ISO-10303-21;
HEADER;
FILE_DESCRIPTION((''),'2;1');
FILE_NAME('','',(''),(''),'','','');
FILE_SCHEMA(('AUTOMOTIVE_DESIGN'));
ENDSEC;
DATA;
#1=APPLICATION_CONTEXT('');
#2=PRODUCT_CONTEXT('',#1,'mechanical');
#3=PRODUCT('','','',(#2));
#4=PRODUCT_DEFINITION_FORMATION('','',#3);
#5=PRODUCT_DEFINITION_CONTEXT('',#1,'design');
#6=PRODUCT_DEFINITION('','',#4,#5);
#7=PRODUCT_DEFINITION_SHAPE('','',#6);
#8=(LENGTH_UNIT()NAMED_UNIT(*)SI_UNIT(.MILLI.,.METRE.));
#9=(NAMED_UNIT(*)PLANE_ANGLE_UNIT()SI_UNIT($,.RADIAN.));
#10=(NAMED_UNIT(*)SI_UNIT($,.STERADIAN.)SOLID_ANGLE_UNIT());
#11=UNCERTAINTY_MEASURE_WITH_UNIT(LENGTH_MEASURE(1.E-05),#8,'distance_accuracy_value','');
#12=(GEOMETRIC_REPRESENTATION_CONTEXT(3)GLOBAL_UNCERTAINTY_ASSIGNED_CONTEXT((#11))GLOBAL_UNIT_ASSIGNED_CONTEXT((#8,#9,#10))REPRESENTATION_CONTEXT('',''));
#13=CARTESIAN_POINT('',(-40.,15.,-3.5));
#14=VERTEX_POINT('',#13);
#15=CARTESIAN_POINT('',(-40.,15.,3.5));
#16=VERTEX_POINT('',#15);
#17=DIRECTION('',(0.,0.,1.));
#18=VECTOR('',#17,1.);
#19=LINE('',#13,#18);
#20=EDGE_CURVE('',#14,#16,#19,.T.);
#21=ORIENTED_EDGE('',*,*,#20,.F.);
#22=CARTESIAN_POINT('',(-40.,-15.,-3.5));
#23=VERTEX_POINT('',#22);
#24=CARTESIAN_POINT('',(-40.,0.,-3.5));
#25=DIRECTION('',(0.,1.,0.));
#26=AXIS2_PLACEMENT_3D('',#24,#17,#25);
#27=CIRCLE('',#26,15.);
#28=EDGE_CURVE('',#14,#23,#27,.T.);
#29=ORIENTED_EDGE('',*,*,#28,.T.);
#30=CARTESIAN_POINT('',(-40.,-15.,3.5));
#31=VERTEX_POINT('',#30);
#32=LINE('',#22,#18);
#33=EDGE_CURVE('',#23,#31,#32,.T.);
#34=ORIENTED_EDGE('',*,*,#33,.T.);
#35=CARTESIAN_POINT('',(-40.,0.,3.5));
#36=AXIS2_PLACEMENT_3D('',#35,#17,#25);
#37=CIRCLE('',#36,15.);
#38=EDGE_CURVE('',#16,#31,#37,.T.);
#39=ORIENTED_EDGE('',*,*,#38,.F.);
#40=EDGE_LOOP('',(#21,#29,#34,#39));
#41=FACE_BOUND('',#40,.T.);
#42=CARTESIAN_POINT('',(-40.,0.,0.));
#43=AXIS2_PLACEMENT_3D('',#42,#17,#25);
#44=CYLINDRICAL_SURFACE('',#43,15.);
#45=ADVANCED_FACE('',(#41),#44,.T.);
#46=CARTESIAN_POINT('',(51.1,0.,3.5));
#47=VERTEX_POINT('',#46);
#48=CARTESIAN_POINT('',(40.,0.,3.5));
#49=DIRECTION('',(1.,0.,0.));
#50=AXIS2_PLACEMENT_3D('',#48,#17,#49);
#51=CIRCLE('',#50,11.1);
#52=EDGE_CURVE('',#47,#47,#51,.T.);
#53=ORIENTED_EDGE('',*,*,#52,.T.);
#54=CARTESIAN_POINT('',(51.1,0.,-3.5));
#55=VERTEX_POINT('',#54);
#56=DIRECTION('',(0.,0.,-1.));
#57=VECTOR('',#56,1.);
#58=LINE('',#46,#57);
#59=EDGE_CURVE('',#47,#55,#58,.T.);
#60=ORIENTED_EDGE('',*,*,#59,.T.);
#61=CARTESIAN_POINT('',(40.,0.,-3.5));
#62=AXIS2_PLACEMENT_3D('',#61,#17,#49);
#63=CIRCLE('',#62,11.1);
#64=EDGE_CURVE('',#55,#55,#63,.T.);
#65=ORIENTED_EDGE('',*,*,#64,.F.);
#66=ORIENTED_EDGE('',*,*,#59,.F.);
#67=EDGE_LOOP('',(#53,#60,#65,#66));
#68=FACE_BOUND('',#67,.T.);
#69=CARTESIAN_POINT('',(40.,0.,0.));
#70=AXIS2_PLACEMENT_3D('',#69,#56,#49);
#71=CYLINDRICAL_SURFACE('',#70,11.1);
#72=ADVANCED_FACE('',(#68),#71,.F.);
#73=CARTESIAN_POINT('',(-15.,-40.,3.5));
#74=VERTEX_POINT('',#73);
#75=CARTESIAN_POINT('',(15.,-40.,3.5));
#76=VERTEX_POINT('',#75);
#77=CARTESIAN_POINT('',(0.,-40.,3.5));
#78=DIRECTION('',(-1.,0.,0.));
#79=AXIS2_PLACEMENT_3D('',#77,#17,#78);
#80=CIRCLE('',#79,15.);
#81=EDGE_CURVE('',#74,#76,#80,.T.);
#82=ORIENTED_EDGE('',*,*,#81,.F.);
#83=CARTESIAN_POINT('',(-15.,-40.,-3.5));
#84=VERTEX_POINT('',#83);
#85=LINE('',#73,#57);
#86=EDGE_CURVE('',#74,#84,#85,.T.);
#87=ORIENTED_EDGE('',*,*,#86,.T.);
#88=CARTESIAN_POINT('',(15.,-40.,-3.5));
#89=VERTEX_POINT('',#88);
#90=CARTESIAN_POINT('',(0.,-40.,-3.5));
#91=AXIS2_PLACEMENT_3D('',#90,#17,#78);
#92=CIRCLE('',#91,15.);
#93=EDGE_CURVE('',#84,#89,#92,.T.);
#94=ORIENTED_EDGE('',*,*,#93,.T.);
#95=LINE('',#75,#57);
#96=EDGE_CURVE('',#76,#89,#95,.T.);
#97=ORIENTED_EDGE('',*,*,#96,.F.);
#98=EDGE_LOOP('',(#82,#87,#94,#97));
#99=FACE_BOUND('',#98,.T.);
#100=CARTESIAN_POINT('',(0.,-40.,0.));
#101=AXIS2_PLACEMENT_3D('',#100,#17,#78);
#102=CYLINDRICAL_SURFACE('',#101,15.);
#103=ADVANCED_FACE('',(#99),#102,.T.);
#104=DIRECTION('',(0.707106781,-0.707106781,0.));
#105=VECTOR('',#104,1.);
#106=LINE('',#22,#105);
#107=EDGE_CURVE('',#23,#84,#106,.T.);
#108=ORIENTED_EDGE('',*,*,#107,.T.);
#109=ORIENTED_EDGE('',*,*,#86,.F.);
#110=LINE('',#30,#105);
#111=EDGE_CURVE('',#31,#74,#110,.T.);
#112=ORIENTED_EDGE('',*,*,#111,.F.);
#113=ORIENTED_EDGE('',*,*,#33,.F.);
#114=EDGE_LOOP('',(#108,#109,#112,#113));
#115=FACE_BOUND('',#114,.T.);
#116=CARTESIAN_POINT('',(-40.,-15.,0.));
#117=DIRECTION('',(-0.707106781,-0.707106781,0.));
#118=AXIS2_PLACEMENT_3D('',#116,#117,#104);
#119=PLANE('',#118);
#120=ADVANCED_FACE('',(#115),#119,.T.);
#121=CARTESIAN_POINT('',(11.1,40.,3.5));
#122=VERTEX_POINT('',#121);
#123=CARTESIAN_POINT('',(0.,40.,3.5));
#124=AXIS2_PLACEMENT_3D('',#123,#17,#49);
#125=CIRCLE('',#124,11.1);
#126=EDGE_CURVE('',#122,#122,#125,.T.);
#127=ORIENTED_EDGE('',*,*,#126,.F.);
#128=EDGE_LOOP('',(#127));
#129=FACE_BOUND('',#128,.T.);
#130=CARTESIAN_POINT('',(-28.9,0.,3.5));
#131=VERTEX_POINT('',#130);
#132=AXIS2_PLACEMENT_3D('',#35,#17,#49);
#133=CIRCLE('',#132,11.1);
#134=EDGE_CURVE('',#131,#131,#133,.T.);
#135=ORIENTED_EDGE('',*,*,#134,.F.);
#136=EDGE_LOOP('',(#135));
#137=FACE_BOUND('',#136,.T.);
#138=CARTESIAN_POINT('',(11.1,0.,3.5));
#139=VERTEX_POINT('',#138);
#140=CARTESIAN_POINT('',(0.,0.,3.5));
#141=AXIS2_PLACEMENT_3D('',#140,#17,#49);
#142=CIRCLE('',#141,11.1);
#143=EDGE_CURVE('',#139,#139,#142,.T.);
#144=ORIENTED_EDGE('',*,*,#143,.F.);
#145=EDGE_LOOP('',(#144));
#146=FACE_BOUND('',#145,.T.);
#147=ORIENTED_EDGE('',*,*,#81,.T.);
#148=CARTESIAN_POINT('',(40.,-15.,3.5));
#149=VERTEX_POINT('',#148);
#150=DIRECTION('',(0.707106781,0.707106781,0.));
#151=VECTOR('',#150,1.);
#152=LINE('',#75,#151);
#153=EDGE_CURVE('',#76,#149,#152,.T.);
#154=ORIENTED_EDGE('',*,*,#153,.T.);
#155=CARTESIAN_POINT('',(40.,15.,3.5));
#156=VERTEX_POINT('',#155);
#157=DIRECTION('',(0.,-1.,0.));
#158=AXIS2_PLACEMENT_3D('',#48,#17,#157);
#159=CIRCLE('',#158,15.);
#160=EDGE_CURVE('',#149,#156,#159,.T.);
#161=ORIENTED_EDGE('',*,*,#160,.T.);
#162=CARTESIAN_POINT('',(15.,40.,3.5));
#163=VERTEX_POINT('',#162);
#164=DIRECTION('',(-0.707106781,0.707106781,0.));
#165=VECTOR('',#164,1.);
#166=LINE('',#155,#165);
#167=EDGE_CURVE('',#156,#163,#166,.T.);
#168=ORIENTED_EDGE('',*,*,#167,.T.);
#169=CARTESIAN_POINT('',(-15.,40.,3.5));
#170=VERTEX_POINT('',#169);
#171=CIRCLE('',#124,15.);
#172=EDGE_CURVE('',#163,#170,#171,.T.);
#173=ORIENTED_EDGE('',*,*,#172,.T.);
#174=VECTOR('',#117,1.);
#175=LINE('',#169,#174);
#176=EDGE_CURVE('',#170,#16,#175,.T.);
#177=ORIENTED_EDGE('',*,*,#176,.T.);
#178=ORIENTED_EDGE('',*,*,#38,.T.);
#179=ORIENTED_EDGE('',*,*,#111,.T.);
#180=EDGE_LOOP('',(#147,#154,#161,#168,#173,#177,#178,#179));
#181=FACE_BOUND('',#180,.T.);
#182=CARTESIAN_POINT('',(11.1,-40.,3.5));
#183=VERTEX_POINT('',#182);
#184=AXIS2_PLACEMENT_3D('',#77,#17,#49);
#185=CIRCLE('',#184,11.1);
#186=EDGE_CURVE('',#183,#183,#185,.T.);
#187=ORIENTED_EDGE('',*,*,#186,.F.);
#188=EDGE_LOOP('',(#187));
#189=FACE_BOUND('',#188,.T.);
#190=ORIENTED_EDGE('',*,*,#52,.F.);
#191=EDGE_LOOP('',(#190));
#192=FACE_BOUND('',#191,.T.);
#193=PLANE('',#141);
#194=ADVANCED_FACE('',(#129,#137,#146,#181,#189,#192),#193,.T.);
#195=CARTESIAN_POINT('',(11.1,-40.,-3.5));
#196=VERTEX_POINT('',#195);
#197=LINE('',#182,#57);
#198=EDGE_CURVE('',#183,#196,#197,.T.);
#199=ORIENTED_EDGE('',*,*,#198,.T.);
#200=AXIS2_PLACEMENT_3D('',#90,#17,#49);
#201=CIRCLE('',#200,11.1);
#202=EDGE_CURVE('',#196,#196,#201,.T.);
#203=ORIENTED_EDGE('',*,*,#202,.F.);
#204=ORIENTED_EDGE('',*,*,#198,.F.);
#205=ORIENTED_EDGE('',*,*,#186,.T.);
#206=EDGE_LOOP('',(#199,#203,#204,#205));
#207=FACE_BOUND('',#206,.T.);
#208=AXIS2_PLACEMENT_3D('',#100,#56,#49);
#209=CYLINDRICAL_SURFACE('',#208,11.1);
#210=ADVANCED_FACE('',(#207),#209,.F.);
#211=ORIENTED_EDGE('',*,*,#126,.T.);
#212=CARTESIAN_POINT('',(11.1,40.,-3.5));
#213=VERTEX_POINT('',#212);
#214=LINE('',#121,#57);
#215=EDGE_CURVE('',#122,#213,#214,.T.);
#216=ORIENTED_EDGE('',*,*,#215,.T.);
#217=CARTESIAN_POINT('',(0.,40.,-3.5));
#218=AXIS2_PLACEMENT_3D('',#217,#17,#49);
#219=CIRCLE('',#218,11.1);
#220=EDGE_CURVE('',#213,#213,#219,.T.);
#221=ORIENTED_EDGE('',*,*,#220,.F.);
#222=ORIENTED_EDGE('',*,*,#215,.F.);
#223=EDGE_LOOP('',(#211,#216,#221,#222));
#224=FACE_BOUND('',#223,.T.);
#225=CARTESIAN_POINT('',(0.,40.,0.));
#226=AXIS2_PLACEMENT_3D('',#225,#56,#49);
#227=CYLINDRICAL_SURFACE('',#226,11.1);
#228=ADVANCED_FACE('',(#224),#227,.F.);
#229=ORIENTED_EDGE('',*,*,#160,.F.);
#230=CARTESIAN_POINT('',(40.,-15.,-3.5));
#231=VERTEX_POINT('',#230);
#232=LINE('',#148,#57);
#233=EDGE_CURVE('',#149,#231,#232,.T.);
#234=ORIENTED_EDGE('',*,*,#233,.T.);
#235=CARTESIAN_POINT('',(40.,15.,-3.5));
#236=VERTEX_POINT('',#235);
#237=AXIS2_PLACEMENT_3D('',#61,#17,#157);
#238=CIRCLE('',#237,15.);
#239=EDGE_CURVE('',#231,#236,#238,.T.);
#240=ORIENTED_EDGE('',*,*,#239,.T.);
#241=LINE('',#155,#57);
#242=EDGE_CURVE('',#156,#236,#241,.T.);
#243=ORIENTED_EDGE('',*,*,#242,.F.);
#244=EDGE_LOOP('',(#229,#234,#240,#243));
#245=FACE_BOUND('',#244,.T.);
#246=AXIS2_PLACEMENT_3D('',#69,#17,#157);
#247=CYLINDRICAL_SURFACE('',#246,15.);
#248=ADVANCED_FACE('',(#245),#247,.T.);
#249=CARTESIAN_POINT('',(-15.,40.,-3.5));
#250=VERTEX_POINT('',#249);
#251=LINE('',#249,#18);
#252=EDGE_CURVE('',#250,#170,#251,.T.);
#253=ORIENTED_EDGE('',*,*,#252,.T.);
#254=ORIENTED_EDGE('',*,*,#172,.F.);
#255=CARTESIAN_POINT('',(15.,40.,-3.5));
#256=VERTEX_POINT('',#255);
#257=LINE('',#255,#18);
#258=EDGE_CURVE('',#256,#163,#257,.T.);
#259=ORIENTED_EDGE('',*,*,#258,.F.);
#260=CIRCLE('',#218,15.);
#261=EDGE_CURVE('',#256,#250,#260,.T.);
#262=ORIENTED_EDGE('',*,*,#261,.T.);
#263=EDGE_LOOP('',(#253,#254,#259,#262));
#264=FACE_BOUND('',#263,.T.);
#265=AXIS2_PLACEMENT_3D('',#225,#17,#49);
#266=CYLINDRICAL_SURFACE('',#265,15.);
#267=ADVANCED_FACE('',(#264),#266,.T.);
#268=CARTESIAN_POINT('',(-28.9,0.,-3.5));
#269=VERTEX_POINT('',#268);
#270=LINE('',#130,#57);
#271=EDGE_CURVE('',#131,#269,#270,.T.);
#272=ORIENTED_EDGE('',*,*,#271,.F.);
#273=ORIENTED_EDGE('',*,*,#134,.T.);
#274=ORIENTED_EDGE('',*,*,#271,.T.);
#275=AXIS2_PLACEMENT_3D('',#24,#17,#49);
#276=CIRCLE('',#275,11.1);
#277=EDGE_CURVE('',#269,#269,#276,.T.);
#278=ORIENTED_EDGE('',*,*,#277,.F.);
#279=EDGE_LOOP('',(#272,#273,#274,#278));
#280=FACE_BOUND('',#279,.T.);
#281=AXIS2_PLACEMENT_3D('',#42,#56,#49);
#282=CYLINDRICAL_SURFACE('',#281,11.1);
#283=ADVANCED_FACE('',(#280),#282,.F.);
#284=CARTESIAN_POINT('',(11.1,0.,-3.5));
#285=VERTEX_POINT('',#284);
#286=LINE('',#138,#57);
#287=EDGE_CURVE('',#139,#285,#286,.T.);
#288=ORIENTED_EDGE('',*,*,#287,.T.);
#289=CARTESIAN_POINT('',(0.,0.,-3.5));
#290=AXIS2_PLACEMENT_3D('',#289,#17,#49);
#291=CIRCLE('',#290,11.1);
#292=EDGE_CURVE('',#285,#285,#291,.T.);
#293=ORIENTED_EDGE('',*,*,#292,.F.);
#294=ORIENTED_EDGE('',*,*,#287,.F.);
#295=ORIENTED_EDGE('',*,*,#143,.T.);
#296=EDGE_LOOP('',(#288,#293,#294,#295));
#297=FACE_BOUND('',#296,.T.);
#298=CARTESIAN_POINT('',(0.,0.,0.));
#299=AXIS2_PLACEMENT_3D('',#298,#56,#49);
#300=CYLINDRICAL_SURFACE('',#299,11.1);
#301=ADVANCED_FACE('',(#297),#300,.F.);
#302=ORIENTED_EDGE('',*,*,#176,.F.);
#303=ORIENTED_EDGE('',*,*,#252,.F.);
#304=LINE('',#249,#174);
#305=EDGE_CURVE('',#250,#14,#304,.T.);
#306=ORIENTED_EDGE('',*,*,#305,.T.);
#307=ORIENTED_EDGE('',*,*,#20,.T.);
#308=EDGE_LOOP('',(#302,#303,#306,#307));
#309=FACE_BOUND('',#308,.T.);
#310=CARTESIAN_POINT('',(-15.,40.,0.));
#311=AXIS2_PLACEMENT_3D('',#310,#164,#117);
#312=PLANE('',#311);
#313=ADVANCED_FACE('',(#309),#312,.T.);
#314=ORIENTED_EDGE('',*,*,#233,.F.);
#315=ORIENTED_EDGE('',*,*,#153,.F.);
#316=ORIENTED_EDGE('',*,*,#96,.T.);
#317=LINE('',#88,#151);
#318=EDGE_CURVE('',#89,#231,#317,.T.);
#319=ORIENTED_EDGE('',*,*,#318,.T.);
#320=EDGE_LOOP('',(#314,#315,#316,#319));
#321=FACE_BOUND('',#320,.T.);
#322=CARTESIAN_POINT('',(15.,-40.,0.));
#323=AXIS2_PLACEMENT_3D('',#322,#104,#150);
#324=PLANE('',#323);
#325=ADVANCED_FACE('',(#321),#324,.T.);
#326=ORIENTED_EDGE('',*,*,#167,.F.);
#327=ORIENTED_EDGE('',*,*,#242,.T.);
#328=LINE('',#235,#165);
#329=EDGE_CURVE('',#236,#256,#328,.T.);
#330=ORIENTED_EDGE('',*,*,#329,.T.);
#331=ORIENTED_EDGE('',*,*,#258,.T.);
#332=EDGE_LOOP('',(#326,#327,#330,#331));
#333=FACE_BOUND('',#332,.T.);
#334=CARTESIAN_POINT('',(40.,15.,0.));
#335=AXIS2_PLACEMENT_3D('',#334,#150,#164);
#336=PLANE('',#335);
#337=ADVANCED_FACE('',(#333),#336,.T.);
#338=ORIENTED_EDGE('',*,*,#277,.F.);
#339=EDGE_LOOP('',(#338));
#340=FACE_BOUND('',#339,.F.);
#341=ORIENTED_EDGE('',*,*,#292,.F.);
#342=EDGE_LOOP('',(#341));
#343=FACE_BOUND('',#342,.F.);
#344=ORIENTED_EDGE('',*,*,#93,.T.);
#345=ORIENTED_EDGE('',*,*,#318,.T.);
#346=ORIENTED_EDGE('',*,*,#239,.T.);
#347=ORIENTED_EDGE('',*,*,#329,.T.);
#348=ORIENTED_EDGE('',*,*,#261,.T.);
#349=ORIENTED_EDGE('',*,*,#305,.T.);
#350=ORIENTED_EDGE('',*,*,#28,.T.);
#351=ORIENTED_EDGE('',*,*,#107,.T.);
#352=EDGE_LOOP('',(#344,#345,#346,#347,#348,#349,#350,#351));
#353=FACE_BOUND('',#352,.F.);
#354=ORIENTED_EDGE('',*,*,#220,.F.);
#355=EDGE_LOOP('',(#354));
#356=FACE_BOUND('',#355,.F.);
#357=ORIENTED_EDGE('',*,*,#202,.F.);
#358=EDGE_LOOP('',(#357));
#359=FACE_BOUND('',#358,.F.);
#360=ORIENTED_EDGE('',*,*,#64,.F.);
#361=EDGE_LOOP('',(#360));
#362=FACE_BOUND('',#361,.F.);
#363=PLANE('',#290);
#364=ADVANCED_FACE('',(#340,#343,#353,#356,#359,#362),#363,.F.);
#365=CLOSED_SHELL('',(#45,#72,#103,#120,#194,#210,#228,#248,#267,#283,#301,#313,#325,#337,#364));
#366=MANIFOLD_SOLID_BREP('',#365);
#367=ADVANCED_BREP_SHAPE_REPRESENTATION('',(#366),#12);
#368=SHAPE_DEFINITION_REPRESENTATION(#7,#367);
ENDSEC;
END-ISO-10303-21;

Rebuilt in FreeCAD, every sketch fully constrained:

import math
import FreeCAD as App
import Part
import Sketcher

doc = App.newDocument("Part")
body = doc.addObject("PartDesign::Body", "Body")

# Sketch on XY plane
sketch1 = doc.addObject("Sketcher::SketchObject", "Sketch")
body.addObject(sketch1)
sketch1.AttachmentSupport = (doc.XY_Plane, [""])
sketch1.MapMode = "FlatFace"
sketch1.addGeometry([
    Part.LineSegment(App.Vector(40, 15, 0), App.Vector(15, 40, 0)),  # 0
    Part.ArcOfCircle(Part.Circle(App.Vector(0, 40, 0), App.Vector(0, 0, 1), 15), math.radians(0), math.radians(180)),  # 1
    Part.LineSegment(App.Vector(-15, 40, 0), App.Vector(-40, 15, 0)),  # 2
    Part.ArcOfCircle(Part.Circle(App.Vector(-40, 0, 0), App.Vector(0, 0, 1), 15), math.radians(90), math.radians(270)),  # 3
    Part.LineSegment(App.Vector(-40, -15, 0), App.Vector(-15, -40, 0)),  # 4
    Part.ArcOfCircle(Part.Circle(App.Vector(0, -40, 0), App.Vector(0, 0, 1), 15), math.radians(180), math.radians(360)),  # 5
    Part.LineSegment(App.Vector(15, -40, 0), App.Vector(40, -15, 0)),  # 6
    Part.ArcOfCircle(Part.Circle(App.Vector(40, 0, 0), App.Vector(0, 0, 1), 15), math.radians(-90), math.radians(90)),  # 7
    Part.Circle(App.Vector(0, -40, 0), App.Vector(0, 0, 1), 11),  # 8
    Part.Circle(App.Vector(-40, 0, 0), App.Vector(0, 0, 1), 11),  # 9
    Part.Circle(App.Vector(0, 0, 0), App.Vector(0, 0, 1), 11),  # 10
    Part.Circle(App.Vector(40, 0, 0), App.Vector(0, 0, 1), 11),  # 11
    Part.Circle(App.Vector(0, 40, 0), App.Vector(0, 0, 1), 11),  # 12
], False)
sketch1.addConstraint([
    Sketcher.Constraint("Coincident", 0, 2, 1, 1),
    Sketcher.Constraint("Coincident", 1, 2, 2, 1),
    Sketcher.Constraint("Coincident", 2, 2, 3, 1),
    Sketcher.Constraint("Coincident", 3, 2, 4, 1),
    Sketcher.Constraint("Coincident", 4, 2, 5, 1),
    Sketcher.Constraint("Coincident", 5, 2, 6, 1),
    Sketcher.Constraint("Coincident", 6, 2, 7, 1),
    Sketcher.Constraint("Coincident", 7, 2, 0, 1),
    Sketcher.Constraint("Coincident", 10, 3, -1, 1),
    Sketcher.Constraint("Coincident", 8, 3, 5, 3),
    Sketcher.Constraint("Coincident", 9, 3, 3, 3),
    Sketcher.Constraint("Coincident", 11, 3, 7, 3),
    Sketcher.Constraint("Coincident", 12, 3, 1, 3),
    Sketcher.Constraint("Equal", 1, 3),
    Sketcher.Constraint("Equal", 3, 5),
    Sketcher.Constraint("Equal", 5, 7),
    Sketcher.Constraint("Equal", 8, 9),
    Sketcher.Constraint("Equal", 9, 10),
    Sketcher.Constraint("Equal", 10, 11),
    Sketcher.Constraint("Equal", 11, 12),
    Sketcher.Constraint("Symmetric", 1, 3, 5, 3, -1, 1),
    Sketcher.Constraint("Symmetric", 3, 3, 7, 3, -1, 1),
    Sketcher.Constraint("Symmetric", 0, 2, 1, 2, -2),
    Sketcher.Constraint("Symmetric", 3, 2, 6, 2, -2),
    Sketcher.Constraint("Perpendicular", 0, 2),
    Sketcher.Constraint("Perpendicular", 2, 4),
    Sketcher.Constraint("Perpendicular", 4, 6),
    Sketcher.Constraint("Horizontal", 12, 3, 0, 2),
    Sketcher.Constraint("Horizontal", 8, 3, 4, 2),
    Sketcher.Constraint("Horizontal", 4, 2, 5, 2),
    Sketcher.Constraint("Vertical", 9, 3, 2, 2),
    Sketcher.Constraint("Radius", 1, 15.0),
    Sketcher.Constraint("Diameter", 8, 22.2),
    Sketcher.Constraint("DistanceY", -1, 1, 1, 3, 40.0),
])
pad1 = doc.addObject("PartDesign::Pad", "Pad")
body.addObject(pad1)
pad1.Profile = sketch1
pad1.Length = 7
pad1.Midplane = True

doc.recompute()
